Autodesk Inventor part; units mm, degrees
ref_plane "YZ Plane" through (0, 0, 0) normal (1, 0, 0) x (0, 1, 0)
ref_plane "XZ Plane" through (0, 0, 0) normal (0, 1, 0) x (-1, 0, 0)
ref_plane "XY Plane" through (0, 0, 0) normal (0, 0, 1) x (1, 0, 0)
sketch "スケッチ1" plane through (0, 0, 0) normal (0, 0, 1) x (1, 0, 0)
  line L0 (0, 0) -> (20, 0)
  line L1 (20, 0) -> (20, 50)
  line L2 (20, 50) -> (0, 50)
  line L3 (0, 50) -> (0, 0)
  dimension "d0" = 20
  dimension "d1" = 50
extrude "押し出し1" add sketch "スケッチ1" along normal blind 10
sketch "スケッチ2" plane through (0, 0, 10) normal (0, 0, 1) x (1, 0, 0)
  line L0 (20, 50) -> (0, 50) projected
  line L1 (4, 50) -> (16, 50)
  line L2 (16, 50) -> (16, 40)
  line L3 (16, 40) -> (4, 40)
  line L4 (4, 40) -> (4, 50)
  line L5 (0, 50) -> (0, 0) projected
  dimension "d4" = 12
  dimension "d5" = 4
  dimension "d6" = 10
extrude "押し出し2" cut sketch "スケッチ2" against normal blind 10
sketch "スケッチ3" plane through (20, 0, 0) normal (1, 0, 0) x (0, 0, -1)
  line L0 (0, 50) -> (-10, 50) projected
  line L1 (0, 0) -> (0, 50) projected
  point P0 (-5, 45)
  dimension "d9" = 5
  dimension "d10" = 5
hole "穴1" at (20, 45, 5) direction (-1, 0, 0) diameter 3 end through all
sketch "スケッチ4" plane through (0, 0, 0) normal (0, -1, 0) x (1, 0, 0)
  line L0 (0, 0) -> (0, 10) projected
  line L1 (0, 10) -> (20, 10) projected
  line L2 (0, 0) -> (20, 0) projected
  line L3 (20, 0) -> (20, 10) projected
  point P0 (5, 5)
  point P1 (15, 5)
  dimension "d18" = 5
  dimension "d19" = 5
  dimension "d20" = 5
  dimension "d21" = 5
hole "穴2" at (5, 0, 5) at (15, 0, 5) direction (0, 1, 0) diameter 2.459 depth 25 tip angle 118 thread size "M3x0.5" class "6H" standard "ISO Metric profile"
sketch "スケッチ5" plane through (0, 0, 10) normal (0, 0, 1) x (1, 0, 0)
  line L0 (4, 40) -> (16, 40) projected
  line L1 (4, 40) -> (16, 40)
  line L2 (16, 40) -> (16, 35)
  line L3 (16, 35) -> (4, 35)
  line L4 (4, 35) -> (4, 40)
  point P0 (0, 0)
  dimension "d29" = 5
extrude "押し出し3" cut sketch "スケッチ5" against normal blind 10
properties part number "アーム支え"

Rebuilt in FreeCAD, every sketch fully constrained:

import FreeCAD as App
import Part
import Sketcher
from FreeCAD import Vector
Q = App.Units.Quantity


def add_polygon(sketch, points):
    """Adds a closed chain of lines whose ends are joined by coincident constraints."""
    first, n = sketch.GeometryCount, len(points)
    for a, b in zip(points, points[1:] + points[:1]):
        sketch.addGeometry(Part.LineSegment(App.Vector(*a, 0), App.Vector(*b, 0)), False)
    for i in range(n):
        sketch.addConstraint(Sketcher.Constraint("Coincident", first + i, 2, first + (i + 1) % n, 1))

doc = App.newDocument("Part")
body = doc.addObject("PartDesign::Body", "Body")

sketch1 = body.newObject("Sketcher::SketchObject", "Sketch")
sketch1.AttachmentSupport = (doc.getObject("XY_Plane"), [""])
sketch1.MapMode = "FlatFace"
add_polygon(sketch1, [(0, 50), (0, 0), (20, 0), (20, 50)])
sketch1.addConstraint(Sketcher.Constraint("Vertical", 0))
sketch1.addConstraint(Sketcher.Constraint("Horizontal", 1))
sketch1.addConstraint(Sketcher.Constraint("Vertical", 2))
sketch1.addConstraint(Sketcher.Constraint("Horizontal", 3))
sketch1.addConstraint(Sketcher.Constraint("Coincident", 0, 2, -1, 1))
sketch1.addConstraint(Sketcher.Constraint("DistanceX", 1, 1, 1, 2, Q("20 mm")))
sketch1.addConstraint(Sketcher.Constraint("DistanceY", 0, 2, 0, 1, Q("50 mm")))
pad1 = body.newObject("PartDesign::Pad", "Pad")
pad1.Profile = sketch1
pad1.Length = 10

sketch2 = body.newObject("Sketcher::SketchObject", "Sketch001")
sketch2.AttachmentSupport = (doc.getObject("XY_Plane"), [""])
sketch2.MapMode = "FlatFace"
sketch2.AttachmentOffset = App.Placement(Vector(0, 0, 10), App.Rotation())
add_polygon(sketch2, [(16, 40), (16, 50), (4, 50), (4, 40)])
sketch2.addConstraint(Sketcher.Constraint("Vertical", 0))
sketch2.addConstraint(Sketcher.Constraint("Horizontal", 1))
sketch2.addConstraint(Sketcher.Constraint("Vertical", 2))
sketch2.addConstraint(Sketcher.Constraint("Horizontal", 3))
sketch2.addConstraint(Sketcher.Constraint("DistanceX", 1, 2, 1, 1, Q("12 mm")))
sketch2.addConstraint(Sketcher.Constraint("DistanceY", 0, 1, 0, 2, Q("10 mm")))
sketch2.addConstraint(Sketcher.Constraint("DistanceX", -1, 1, 1, 2, Q("4 mm")))
sketch2.addConstraint(Sketcher.Constraint("DistanceY", -1, 1, 0, 2, Q("50 mm")))
pocket1 = body.newObject("PartDesign::Pocket", "Pocket")
pocket1.Profile = sketch2
pocket1.Length = 10

sketch3 = body.newObject("Sketcher::SketchObject", "Sketch002")
sketch3.AttachmentSupport = (doc.getObject("YZ_Plane"), [""])
sketch3.MapMode = "FlatFace"
sketch3.AttachmentOffset = App.Placement(Vector(0, 0, 20), App.Rotation())
sketch3.addGeometry(Part.Circle(Vector(45, 5, 0), Vector(0, 0, 1), 1.5), False)
sketch3.addConstraint(Sketcher.Constraint("Diameter", 0, Q("3 mm")))
sketch3.addConstraint(Sketcher.Constraint("DistanceX", -1, 1, 0, 3, Q("45 mm")))
sketch3.addConstraint(Sketcher.Constraint("DistanceY", -1, 1, 0, 3, Q("5 mm")))
doc.recompute()
hole = body.newObject("PartDesign::Hole", "Hole")
hole.Profile = sketch3
hole.ThreadType = "None"
hole.Diameter = 3
hole.DepthType = "ThroughAll"

sketch4 = body.newObject("Sketcher::SketchObject", "Sketch003")
sketch4.AttachmentSupport = (doc.getObject("XZ_Plane"), [""])
sketch4.MapMode = "FlatFace"
sketch4.addGeometry(Part.Circle(Vector(5, 5, 0), Vector(0, 0, 1), 1.2), False)
sketch4.addGeometry(Part.Circle(Vector(15, 5, 0), Vector(0, 0, 1), 1.2), False)
sketch4.addConstraint(Sketcher.Constraint("Equal", 0, 1))
sketch4.addConstraint(Sketcher.Constraint("Horizontal", 0, 3, 1, 3))
sketch4.addConstraint(Sketcher.Constraint("Diameter", 0, Q("2.459 mm")))
sketch4.addConstraint(Sketcher.Constraint("DistanceX", -1, 1, 0, 3, Q("5 mm")))
sketch4.addConstraint(Sketcher.Constraint("DistanceY", -1, 1, 0, 3, Q("5 mm")))
sketch4.addConstraint(Sketcher.Constraint("DistanceX", -1, 1, 1, 3, Q("15 mm")))
doc.recompute()
hole2 = body.newObject("PartDesign::Hole", "Hole001")
hole2.Profile = sketch4
hole2.ThreadType = "None"
hole2.Diameter = 2.459
hole2.DepthType = "Dimension"
hole2.Depth = 25
hole2.DrillPoint = "Angled"
hole2.DrillPointAngle = 118

sketch5 = body.newObject("Sketcher::SketchObject", "Sketch004")
sketch5.AttachmentSupport = (doc.getObject("XY_Plane"), [""])
sketch5.MapMode = "FlatFace"
sketch5.AttachmentOffset = App.Placement(Vector(0, 0, 10), App.Rotation())
add_polygon(sketch5, [(16, 40), (4, 40), (4, 35), (16, 35)])
sketch5.addConstraint(Sketcher.Constraint("Horizontal", 0))
sketch5.addConstraint(Sketcher.Constraint("Vertical", 1))
sketch5.addConstraint(Sketcher.Constraint("Horizontal", 2))
sketch5.addConstraint(Sketcher.Constraint("Vertical", 3))
sketch5.addConstraint(Sketcher.Constraint("DistanceY", 1, 2, 1, 1, Q("5 mm")))
sketch5.addConstraint(Sketcher.Constraint("DistanceX", 0, 2, 0, 1, Q("12 mm")))
sketch5.addConstraint(Sketcher.Constraint("DistanceX", -1, 1, 0, 2, Q("4 mm")))
sketch5.addConstraint(Sketcher.Constraint("DistanceY", -1, 1, 0, 2, Q("40 mm")))
pocket2 = body.newObject("PartDesign::Pocket", "Pocket001")
pocket2.Profile = sketch5
pocket2.Length = 10

doc.recompute()
